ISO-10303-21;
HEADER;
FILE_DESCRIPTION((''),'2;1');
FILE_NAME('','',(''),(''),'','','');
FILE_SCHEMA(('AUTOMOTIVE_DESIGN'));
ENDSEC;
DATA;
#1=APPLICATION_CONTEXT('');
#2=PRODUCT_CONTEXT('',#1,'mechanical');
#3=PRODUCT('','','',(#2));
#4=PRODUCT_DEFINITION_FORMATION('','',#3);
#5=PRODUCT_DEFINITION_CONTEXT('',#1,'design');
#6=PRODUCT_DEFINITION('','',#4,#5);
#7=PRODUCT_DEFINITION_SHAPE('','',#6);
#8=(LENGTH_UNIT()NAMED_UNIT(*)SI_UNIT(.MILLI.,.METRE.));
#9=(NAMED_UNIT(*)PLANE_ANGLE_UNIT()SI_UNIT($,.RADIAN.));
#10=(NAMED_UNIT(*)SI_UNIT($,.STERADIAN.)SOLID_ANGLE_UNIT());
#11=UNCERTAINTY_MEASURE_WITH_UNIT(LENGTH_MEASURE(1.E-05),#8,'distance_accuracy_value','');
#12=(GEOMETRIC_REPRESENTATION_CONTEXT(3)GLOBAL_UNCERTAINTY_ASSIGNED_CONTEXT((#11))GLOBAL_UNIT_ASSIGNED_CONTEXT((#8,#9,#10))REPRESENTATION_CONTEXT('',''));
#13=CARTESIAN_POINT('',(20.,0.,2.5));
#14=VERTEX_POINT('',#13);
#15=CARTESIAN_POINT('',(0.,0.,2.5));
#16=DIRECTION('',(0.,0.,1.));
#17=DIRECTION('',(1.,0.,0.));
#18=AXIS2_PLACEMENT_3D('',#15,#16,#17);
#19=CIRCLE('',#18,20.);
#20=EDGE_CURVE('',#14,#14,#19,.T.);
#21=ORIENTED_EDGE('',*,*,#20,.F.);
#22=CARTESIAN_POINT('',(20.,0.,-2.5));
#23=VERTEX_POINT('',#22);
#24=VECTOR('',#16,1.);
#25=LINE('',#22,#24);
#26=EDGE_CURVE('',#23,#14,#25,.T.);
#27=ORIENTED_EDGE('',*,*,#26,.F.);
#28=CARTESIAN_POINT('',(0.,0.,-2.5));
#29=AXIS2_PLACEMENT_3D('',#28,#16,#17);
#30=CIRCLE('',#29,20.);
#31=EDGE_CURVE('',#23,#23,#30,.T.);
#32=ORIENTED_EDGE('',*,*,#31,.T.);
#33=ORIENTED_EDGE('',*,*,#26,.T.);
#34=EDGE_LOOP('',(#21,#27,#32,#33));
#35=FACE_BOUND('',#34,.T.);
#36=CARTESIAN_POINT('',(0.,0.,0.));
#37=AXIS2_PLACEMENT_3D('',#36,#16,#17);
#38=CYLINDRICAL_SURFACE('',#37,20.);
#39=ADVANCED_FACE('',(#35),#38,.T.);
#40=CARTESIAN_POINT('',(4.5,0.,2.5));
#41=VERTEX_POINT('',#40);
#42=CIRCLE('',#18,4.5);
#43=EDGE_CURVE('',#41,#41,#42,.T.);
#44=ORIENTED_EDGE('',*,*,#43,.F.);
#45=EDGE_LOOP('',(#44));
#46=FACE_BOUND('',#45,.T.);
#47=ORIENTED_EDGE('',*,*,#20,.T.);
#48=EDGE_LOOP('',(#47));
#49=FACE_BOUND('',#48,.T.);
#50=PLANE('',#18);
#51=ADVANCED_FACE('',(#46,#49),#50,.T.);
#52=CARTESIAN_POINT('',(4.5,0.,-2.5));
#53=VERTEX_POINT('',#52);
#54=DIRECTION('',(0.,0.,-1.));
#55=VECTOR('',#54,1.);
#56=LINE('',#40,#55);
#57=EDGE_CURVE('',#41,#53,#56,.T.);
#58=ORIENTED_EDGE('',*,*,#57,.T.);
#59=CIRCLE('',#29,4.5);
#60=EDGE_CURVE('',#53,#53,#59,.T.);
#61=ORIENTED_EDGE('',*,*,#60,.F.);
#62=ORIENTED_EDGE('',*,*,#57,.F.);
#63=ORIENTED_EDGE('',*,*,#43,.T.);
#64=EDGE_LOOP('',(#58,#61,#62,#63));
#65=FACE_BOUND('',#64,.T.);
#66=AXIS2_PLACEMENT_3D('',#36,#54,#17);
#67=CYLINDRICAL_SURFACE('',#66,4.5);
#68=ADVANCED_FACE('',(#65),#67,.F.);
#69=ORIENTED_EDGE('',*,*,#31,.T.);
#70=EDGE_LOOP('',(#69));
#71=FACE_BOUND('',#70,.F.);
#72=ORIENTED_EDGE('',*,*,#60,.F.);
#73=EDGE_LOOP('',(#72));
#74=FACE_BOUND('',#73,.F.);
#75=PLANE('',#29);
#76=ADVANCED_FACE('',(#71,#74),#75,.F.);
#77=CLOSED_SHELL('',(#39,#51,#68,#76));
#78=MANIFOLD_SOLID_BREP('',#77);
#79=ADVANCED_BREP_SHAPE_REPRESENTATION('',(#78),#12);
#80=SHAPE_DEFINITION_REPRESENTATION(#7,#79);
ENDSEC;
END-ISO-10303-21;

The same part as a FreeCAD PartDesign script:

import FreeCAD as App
import Part
import Sketcher
from FreeCAD import Vector

doc = App.newDocument("Part")
params = doc.addObject("Spreadsheet::Sheet", "Params")
for row, (alias, value) in enumerate([
    ("sketch1_diameter", "40 mm"),
    ("sketch1_diameter2", "9 mm"),
    ("pad1_length", "5 mm"),
], start=1):
    params.set(f"A{row}", alias)
    params.set(f"B{row}", "=" + value)
    params.setAlias(f"B{row}", alias)

body = doc.addObject("PartDesign::Body", "Body")

# Sketch on XY plane
sketch1 = body.newObject("Sketcher::SketchObject", "Sketch")
sketch1.AttachmentSupport = (doc.getObject("XY_Plane"), [""])
sketch1.MapMode = "FlatFace"
sketch1.addGeometry(Part.Circle(Vector(0, 0, 0), Vector(0, 0, 1), 20), False)
sketch1.addGeometry(Part.Circle(Vector(0, 0, 0), Vector(0, 0, 1), 4.5), False)
sketch1.addConstraint(Sketcher.Constraint("Coincident", 0, 3, -1, 1))
sketch1.addConstraint(Sketcher.Constraint("Coincident", 1, 3, -1, 1))
sketch1.addConstraint(Sketcher.Constraint("Diameter", 0, 40.0))
sketch1.addConstraint(Sketcher.Constraint("Diameter", 1, 9.0))
sketch1.setExpression("Constraints[2]", "Params.sketch1_diameter")
sketch1.setExpression("Constraints[3]", "Params.sketch1_diameter2")
pad1 = body.newObject("PartDesign::Pad", "Pad")
pad1.Profile = sketch1
pad1.setExpression("Length", "Params.pad1_length")
pad1.Midplane = True

doc.recompute()
